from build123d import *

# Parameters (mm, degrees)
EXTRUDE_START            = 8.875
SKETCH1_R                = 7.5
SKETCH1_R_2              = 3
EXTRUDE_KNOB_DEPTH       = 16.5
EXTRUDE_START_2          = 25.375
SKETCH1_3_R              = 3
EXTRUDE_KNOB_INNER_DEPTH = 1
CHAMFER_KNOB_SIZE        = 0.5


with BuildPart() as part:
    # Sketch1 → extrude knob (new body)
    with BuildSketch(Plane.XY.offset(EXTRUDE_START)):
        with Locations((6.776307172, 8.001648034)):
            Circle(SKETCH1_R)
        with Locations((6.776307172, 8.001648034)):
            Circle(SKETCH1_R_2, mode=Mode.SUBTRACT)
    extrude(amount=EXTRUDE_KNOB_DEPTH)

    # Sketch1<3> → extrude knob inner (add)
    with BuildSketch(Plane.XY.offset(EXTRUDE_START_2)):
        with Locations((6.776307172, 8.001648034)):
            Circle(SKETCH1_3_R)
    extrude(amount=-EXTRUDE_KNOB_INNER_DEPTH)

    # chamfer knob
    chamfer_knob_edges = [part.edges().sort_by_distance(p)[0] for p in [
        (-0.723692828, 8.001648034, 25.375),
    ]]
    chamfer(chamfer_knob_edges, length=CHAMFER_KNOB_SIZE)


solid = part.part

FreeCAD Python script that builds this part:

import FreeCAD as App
import Part
import Sketcher
from FreeCAD import Vector


def edges_at(feature, points):
    """Names of the edges that pass closest to the given points."""
    edges = feature.Shape.Edges
    near = lambda p: min(range(len(edges)), key=lambda i: edges[i].distToShape(Part.Vertex(*p))[0])
    return sorted({f"Edge{near(p) + 1}" for p in points})

doc = App.newDocument("Part")
params = doc.addObject("Spreadsheet::Sheet", "Params")
for row, (alias, value) in enumerate([
    ("sketch1_diameter", "15 mm"),
    ("sketch1_diameter2", "6 mm"),
    ("pad1_length", "16.5 mm"),
    ("sketch2_diameter", "6 mm"),
    ("pad2_length", "1 mm"),
    ("chamfer_size", "0.5 mm"),
], start=1):
    params.set(f"A{row}", alias)
    params.set(f"B{row}", "=" + value)
    params.setAlias(f"B{row}", alias)

body = doc.addObject("PartDesign::Body", "Body")

sketch1 = body.newObject("Sketcher::SketchObject", "Sketch")
sketch1.AttachmentSupport = (doc.getObject("XY_Plane"), [""])
sketch1.MapMode = "FlatFace"
sketch1.AttachmentOffset = App.Placement(Vector(0, 0, 8.875), App.Rotation())
sketch1.addGeometry([
    Part.Circle(Vector(6.776307, 8.001648, 0), Vector(0, 0, 1), 7.5),
    Part.Circle(Vector(6.776307, 8.001648, 0), Vector(0, 0, 1), 3),
], False)
sketch1.addConstraint([
    Sketcher.Constraint("Coincident", 1, 3, 0, 3),
    Sketcher.Constraint("Diameter", 0, 15.0),
    Sketcher.Constraint("Diameter", 1, 6.0),
    Sketcher.Constraint("DistanceY", -1, 1, 0, 3, 8.001648),
    Sketcher.Constraint("DistanceX", -1, 1, 0, 3, 6.776307),
])
sketch1.setExpression("Constraints[1]", "Params.sketch1_diameter")
sketch1.setExpression("Constraints[2]", "Params.sketch1_diameter2")
pad1 = body.newObject("PartDesign::Pad", "Pad")
pad1.Profile = sketch1
pad1.setExpression("Length", "Params.pad1_length")

sketch2 = body.newObject("Sketcher::SketchObject", "Sketch001")
sketch2.AttachmentSupport = (doc.getObject("XY_Plane"), [""])
sketch2.MapMode = "FlatFace"
sketch2.AttachmentOffset = App.Placement(Vector(0, 0, 25.375), App.Rotation())
sketch2.addGeometry(Part.Circle(Vector(6.776307, 8.001648, 0), Vector(0, 0, 1), 3), False)
sketch2.addConstraint([
    Sketcher.Constraint("Diameter", 0, 6.0),
    Sketcher.Constraint("DistanceY", -1, 1, 0, 3, 8.001648),
    Sketcher.Constraint("DistanceX", -1, 1, 0, 3, 6.776307),
])
sketch2.setExpression("Constraints[0]", "Params.sketch2_diameter")
pad2 = body.newObject("PartDesign::Pad", "Pad001")
pad2.Profile = sketch2
pad2.setExpression("Length", "Params.pad2_length")
pad2.Reversed = True
doc.recompute()

chamfer = body.newObject("PartDesign::Chamfer", "Chamfer")
chamfer.Base = (pad2, edges_at(pad2, [(-0.724, 8.002, 25.375)]))
chamfer.setExpression("Size", "Params.chamfer_size")

doc.recompute()
